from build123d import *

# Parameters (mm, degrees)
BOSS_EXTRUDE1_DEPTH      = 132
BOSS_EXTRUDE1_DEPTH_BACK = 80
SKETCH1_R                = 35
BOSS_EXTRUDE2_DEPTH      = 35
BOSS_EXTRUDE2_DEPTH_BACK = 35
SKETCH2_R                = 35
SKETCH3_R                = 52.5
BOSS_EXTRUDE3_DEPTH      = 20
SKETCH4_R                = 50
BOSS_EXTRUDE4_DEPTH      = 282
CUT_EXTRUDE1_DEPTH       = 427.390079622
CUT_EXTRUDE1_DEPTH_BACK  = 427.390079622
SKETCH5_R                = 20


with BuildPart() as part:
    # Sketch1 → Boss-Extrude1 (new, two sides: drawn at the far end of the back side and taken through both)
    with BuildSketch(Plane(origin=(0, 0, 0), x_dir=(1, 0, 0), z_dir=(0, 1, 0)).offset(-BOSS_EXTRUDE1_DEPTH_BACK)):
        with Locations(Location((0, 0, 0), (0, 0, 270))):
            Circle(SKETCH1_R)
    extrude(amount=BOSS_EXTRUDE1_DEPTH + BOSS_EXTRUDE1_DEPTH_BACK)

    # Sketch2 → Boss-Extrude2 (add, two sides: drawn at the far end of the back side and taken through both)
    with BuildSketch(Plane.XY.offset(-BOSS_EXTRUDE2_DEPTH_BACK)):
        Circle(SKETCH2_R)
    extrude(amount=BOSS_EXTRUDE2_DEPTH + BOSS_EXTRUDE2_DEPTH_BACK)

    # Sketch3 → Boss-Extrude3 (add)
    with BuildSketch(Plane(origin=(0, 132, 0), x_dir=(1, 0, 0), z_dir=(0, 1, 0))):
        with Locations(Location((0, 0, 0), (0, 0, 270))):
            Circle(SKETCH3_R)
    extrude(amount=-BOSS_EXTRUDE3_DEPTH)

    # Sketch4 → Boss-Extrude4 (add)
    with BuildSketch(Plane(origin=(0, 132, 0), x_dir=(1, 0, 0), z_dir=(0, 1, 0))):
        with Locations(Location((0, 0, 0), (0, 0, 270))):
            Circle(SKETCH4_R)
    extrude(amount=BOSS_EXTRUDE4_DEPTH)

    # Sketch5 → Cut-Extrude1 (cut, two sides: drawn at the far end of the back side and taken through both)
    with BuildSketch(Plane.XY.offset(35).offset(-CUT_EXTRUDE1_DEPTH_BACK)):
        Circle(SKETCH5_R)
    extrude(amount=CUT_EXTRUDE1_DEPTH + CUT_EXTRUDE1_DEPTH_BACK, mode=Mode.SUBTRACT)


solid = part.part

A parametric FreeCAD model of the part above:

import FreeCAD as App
import Part
import Sketcher
from FreeCAD import Vector

doc = App.newDocument("Part")
params = doc.addObject("Spreadsheet::Sheet", "Params")
for row, (alias, value) in enumerate([
    ("sketch1_diameter", "70 mm"),
    ("pad1_length", "132 mm"),
    ("pad1_length2", "80 mm"),
    ("sketch2_diameter", "70 mm"),
    ("pad2_length", "35 mm"),
    ("pad2_length2", "35 mm"),
    ("sketch3_diameter", "105 mm"),
    ("pad3_length", "20 mm"),
    ("sketch4_diameter", "100 mm"),
    ("pad4_length", "282 mm"),
    ("sketch5_diameter", "40 mm"),
], start=1):
    params.set(f"A{row}", alias)
    params.set(f"B{row}", "=" + value)
    params.setAlias(f"B{row}", alias)

body = doc.addObject("PartDesign::Body", "Body")

# Sketch on XZ plane
sketch1 = body.newObject("Sketcher::SketchObject", "Sketch")
sketch1.AttachmentSupport = (doc.getObject("XZ_Plane"), [""])
sketch1.MapMode = "FlatFace"
sketch1.addGeometry(Part.Circle(Vector(0, 0, 0), Vector(0, 0, 1), 35), False)
sketch1.addConstraint([
    Sketcher.Constraint("Coincident", 0, 3, -1, 1),
    Sketcher.Constraint("Diameter", 0, 70.0),
])
sketch1.setExpression("Constraints[1]", "Params.sketch1_diameter")
pad1 = body.newObject("PartDesign::Pad", "Pad")
pad1.Profile = sketch1
pad1.Type = "TwoLengths"
pad1.setExpression("Length", "Params.pad1_length")
pad1.setExpression("Length2", "Params.pad1_length2")
pad1.Reversed = True

# Sketch on XY plane
sketch2 = body.newObject("Sketcher::SketchObject", "Sketch001")
sketch2.AttachmentSupport = (doc.getObject("XY_Plane"), [""])
sketch2.MapMode = "FlatFace"
sketch2.addGeometry(Part.Circle(Vector(0, 0, 0), Vector(0, 0, 1), 35), False)
sketch2.addConstraint([
    Sketcher.Constraint("Coincident", 0, 3, -1, 1),
    Sketcher.Constraint("Diameter", 0, 70.0),
])
sketch2.setExpression("Constraints[1]", "Params.sketch2_diameter")
pad2 = body.newObject("PartDesign::Pad", "Pad001")
pad2.Profile = sketch2
pad2.Type = "TwoLengths"
pad2.setExpression("Length", "Params.pad2_length")
pad2.setExpression("Length2", "Params.pad2_length2")

# Sketch on XZ plane
sketch3 = body.newObject("Sketcher::SketchObject", "Sketch002")
sketch3.AttachmentSupport = (doc.getObject("XZ_Plane"), [""])
sketch3.MapMode = "FlatFace"
sketch3.AttachmentOffset = App.Placement(Vector(0, 0, -132), App.Rotation())
sketch3.addGeometry(Part.Circle(Vector(0, 0, 0), Vector(0, 0, 1), 52.5), False)
sketch3.addConstraint([
    Sketcher.Constraint("Coincident", 0, 3, -1, 1),
    Sketcher.Constraint("Diameter", 0, 105.0),
])
sketch3.setExpression("Constraints[1]", "Params.sketch3_diameter")
pad3 = body.newObject("PartDesign::Pad", "Pad002")
pad3.Profile = sketch3
pad3.setExpression("Length", "Params.pad3_length")

# Sketch on XZ plane
sketch4 = body.newObject("Sketcher::SketchObject", "Sketch003")
sketch4.AttachmentSupport = (doc.getObject("XZ_Plane"), [""])
sketch4.MapMode = "FlatFace"
sketch4.AttachmentOffset = App.Placement(Vector(0, 0, -132), App.Rotation())
sketch4.addGeometry(Part.Circle(Vector(0, 0, 0), Vector(0, 0, 1), 50), False)
sketch4.addConstraint([
    Sketcher.Constraint("Coincident", 0, 3, -1, 1),
    Sketcher.Constraint("Diameter", 0, 100.0),
])
sketch4.setExpression("Constraints[1]", "Params.sketch4_diameter")
pad4 = body.newObject("PartDesign::Pad", "Pad003")
pad4.Profile = sketch4
pad4.setExpression("Length", "Params.pad4_length")
pad4.Reversed = True

# Sketch on XY plane
sketch5 = body.newObject("Sketcher::SketchObject", "Sketch004")
sketch5.AttachmentSupport = (doc.getObject("XY_Plane"), [""])
sketch5.MapMode = "FlatFace"
sketch5.AttachmentOffset = App.Placement(Vector(0, 0, 35), App.Rotation())
sketch5.addGeometry(Part.Circle(Vector(0, 0, 0), Vector(0, 0, 1), 20), False)
sketch5.addConstraint([
    Sketcher.Constraint("Coincident", 0, 3, -1, 1),
    Sketcher.Constraint("Diameter", 0, 40.0),
])
sketch5.setExpression("Constraints[1]", "Params.sketch5_diameter")
pocket1 = body.newObject("PartDesign::Pocket", "Pocket")
pocket1.Profile = sketch5
pocket1.Type = "ThroughAll"
pocket1.Midplane = True

doc.recompute()
